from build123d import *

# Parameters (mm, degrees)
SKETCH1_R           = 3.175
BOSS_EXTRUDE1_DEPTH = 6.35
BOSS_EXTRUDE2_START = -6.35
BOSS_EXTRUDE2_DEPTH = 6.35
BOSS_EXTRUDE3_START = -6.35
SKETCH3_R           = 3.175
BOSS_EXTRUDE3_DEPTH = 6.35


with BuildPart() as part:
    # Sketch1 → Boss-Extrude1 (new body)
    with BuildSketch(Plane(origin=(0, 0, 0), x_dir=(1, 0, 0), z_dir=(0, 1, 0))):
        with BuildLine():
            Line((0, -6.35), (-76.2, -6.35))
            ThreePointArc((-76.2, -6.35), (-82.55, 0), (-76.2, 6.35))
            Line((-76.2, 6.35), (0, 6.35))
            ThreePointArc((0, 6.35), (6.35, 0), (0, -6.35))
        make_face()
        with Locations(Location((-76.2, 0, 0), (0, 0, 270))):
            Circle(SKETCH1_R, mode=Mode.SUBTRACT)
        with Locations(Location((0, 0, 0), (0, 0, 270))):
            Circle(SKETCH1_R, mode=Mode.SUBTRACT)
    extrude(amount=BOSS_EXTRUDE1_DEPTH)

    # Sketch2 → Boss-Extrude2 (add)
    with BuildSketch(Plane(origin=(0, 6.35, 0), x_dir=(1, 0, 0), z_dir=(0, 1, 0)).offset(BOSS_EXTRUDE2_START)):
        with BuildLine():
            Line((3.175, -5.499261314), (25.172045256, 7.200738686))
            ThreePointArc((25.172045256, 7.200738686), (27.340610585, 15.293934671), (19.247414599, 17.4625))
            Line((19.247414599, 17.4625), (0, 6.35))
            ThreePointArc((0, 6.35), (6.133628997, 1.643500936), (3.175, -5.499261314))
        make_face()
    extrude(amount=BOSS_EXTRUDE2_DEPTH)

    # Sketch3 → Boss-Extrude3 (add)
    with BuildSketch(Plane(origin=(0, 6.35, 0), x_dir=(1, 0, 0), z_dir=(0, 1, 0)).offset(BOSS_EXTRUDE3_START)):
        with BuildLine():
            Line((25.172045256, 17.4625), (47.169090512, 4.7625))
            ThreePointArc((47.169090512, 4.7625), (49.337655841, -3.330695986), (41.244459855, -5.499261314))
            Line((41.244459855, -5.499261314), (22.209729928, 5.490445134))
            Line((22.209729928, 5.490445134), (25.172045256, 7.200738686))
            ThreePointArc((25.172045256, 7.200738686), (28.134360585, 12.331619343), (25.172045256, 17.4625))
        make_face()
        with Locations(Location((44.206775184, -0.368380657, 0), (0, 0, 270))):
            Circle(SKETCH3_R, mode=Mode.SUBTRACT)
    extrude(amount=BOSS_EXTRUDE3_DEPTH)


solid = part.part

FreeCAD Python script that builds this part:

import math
import FreeCAD as App
import Part
import Sketcher

V = App.Vector
Q = App.Units.Quantity

doc = App.newDocument("Part")
body = doc.addObject("PartDesign::Body", "Body")

# Sketch on XZ plane
sketch1 = doc.addObject("Sketcher::SketchObject", "Sketch")
body.addObject(sketch1)
sketch1.AttachmentSupport = (doc.XZ_Plane, [""])
sketch1.MapMode = "FlatFace"
sketch1.addGeometry([
    Part.LineSegment(V(-76.2, 6.3, 0), V(0, 6.3, 0)),  # 0
    Part.ArcOfCircle(Part.Circle(V(0, 0, 0), V(0, 0, 1), 6.3), math.radians(-90), math.radians(90)),  # 1
    Part.LineSegment(V(0, -6.3, 0), V(-76.2, -6.3, 0)),  # 2
    Part.ArcOfCircle(Part.Circle(V(-76.2, 0, 0), V(0, 0, 1), 6.3), math.radians(90), math.radians(270)),  # 3
    Part.Circle(V(0, 0, 0), V(0, 0, 1), 3.2),  # 4
    Part.Circle(V(-76.2, 0, 0), V(0, 0, 1), 3.2),  # 5
], False)
sketch1.addConstraint([
    Sketcher.Constraint("Tangent", 0, 2, 1, 2),
    Sketcher.Constraint("Tangent", 1, 1, 2, 1),
    Sketcher.Constraint("Tangent", 2, 2, 3, 2),
    Sketcher.Constraint("Tangent", 3, 1, 0, 1),
    Sketcher.Constraint("Horizontal", 0),
    Sketcher.Constraint("Horizontal", 2),
    Sketcher.Constraint("Coincident", 1, 3, -1, 1),
    Sketcher.Constraint("Coincident", 4, 3, -1, 1),
    Sketcher.Constraint("Coincident", 5, 3, 3, 3),
    Sketcher.Constraint("Equal", 4, 5),
    Sketcher.Constraint("Diameter", 4, Q("0.25 in")),
    Sketcher.Constraint("DistanceX", 0, 1, 0, 2, Q("3 in")),
    Sketcher.Constraint("Radius", 1, Q("0.25 in")),
])
pad1 = doc.addObject("PartDesign::Pad", "Pad")
body.addObject(pad1)
pad1.Profile = sketch1
pad1.Length = Q("0.25 in")
pad1.Reversed = True

# Sketch on XZ plane
sketch2 = doc.addObject("Sketcher::SketchObject", "Sketch001")
body.addObject(sketch2)
sketch2.AttachmentSupport = (doc.XZ_Plane, [""])
sketch2.MapMode = "FlatFace"
sketch2.addGeometry([
    Part.LineSegment(V(3, 5, 0), V(25, -7, 0)),
    Part.ArcOfCircle(Part.Circle(V(22, -12, 0), V(0, 0, 1), 6), math.radians(-120), math.radians(60)),
    Part.LineSegment(V(19, -17, 0), V(0, -6, 0)),
    Part.ArcOfCircle(Part.Circle(V(0, 0, 0), V(0, 0, 1), 6), math.radians(-90), math.radians(60)),
], False)
sketch2.addConstraint([
    Sketcher.Constraint("Tangent", 0, 2, 1, 2),
    Sketcher.Constraint("Tangent", 1, 1, 2, 1),
    Sketcher.Constraint("Coincident", 2, 2, 3, 1),
    Sketcher.Constraint("Tangent", 3, 2, 0, 1),
    Sketcher.Constraint("Coincident", 3, 3, -1, 1),
    Sketcher.Constraint("PointOnObject", 2, 2, -2),
    Sketcher.Constraint("Parallel", 0, 2),
    Sketcher.Constraint("Radius", 3, Q("0.25 in")),
    Sketcher.Constraint("Distance", 0, Q("1 in")),
    Sketcher.Constraint("Angle", 0, Q("-30 deg")),
])
pad2 = doc.addObject("PartDesign::Pad", "Pad001")
body.addObject(pad2)
pad2.Profile = sketch2
pad2.Length = Q("0.25 in")
pad2.Reversed = True

# Sketch on XZ plane
sketch3 = doc.addObject("Sketcher::SketchObject", "Sketch002")
body.addObject(sketch3)
sketch3.AttachmentSupport = (doc.XZ_Plane, [""])
sketch3.MapMode = "FlatFace"
sketch3.addGeometry([
    Part.LineSegment(V(47.2, -4.8, 0), V(25.2, -17.5, 0)),  # 0
    Part.ArcOfCircle(Part.Circle(V(22.2, -12.3, 0), V(0, 0, 1), 5.9), math.radians(-60), math.radians(60)),  # 1
    Part.LineSegment(V(25.2, -7.2, 0), V(22.2, -5.5, 0)),  # 2
    Part.LineSegment(V(22.2, -5.5, 0), V(41.2, 5.5, 0)),  # 3
    Part.ArcOfCircle(Part.Circle(V(44.2, 0.4, 0), V(0, 0, 1), 5.9), math.radians(-60), math.radians(120)),  # 4
    Part.Circle(V(44.2, 0.4, 0), V(0, 0, 1), 3.2),  # 5
], False)
sketch3.addConstraint([
    Sketcher.Constraint("Tangent", 0, 2, 1, 1),
    Sketcher.Constraint("Tangent", 1, 2, 2, 1),
    Sketcher.Constraint("Coincident", 2, 2, 3, 1),
    Sketcher.Constraint("Tangent", 3, 2, 4, 2),
    Sketcher.Constraint("Tangent", 4, 1, 0, 1),
    Sketcher.Constraint("Coincident", 5, 3, 4, 3),
    Sketcher.Constraint("Equal", 1, 4),
    Sketcher.Constraint("Parallel", 0, 3),
    Sketcher.Constraint("Vertical", 0, 2, 1, 2),
    Sketcher.Constraint("Diameter", 5, Q("0.25 in")),
    Sketcher.Constraint("Distance", 0, Q("1 in")),
    Sketcher.Constraint("Angle", 0, Q("-150 deg")),
    Sketcher.Constraint("DistanceY", 0, 2, -1, 1, Q("0.6875 in")),
    Sketcher.Constraint("Radius", 1, 5.924631),
    Sketcher.Constraint("DistanceX", -1, 1, 1, 3, 22.20973),
])
pad3 = doc.addObject("PartDesign::Pad", "Pad002")
body.addObject(pad3)
pad3.Profile = sketch3
pad3.Length = Q("0.25 in")
pad3.Reversed = True

doc.recompute()
